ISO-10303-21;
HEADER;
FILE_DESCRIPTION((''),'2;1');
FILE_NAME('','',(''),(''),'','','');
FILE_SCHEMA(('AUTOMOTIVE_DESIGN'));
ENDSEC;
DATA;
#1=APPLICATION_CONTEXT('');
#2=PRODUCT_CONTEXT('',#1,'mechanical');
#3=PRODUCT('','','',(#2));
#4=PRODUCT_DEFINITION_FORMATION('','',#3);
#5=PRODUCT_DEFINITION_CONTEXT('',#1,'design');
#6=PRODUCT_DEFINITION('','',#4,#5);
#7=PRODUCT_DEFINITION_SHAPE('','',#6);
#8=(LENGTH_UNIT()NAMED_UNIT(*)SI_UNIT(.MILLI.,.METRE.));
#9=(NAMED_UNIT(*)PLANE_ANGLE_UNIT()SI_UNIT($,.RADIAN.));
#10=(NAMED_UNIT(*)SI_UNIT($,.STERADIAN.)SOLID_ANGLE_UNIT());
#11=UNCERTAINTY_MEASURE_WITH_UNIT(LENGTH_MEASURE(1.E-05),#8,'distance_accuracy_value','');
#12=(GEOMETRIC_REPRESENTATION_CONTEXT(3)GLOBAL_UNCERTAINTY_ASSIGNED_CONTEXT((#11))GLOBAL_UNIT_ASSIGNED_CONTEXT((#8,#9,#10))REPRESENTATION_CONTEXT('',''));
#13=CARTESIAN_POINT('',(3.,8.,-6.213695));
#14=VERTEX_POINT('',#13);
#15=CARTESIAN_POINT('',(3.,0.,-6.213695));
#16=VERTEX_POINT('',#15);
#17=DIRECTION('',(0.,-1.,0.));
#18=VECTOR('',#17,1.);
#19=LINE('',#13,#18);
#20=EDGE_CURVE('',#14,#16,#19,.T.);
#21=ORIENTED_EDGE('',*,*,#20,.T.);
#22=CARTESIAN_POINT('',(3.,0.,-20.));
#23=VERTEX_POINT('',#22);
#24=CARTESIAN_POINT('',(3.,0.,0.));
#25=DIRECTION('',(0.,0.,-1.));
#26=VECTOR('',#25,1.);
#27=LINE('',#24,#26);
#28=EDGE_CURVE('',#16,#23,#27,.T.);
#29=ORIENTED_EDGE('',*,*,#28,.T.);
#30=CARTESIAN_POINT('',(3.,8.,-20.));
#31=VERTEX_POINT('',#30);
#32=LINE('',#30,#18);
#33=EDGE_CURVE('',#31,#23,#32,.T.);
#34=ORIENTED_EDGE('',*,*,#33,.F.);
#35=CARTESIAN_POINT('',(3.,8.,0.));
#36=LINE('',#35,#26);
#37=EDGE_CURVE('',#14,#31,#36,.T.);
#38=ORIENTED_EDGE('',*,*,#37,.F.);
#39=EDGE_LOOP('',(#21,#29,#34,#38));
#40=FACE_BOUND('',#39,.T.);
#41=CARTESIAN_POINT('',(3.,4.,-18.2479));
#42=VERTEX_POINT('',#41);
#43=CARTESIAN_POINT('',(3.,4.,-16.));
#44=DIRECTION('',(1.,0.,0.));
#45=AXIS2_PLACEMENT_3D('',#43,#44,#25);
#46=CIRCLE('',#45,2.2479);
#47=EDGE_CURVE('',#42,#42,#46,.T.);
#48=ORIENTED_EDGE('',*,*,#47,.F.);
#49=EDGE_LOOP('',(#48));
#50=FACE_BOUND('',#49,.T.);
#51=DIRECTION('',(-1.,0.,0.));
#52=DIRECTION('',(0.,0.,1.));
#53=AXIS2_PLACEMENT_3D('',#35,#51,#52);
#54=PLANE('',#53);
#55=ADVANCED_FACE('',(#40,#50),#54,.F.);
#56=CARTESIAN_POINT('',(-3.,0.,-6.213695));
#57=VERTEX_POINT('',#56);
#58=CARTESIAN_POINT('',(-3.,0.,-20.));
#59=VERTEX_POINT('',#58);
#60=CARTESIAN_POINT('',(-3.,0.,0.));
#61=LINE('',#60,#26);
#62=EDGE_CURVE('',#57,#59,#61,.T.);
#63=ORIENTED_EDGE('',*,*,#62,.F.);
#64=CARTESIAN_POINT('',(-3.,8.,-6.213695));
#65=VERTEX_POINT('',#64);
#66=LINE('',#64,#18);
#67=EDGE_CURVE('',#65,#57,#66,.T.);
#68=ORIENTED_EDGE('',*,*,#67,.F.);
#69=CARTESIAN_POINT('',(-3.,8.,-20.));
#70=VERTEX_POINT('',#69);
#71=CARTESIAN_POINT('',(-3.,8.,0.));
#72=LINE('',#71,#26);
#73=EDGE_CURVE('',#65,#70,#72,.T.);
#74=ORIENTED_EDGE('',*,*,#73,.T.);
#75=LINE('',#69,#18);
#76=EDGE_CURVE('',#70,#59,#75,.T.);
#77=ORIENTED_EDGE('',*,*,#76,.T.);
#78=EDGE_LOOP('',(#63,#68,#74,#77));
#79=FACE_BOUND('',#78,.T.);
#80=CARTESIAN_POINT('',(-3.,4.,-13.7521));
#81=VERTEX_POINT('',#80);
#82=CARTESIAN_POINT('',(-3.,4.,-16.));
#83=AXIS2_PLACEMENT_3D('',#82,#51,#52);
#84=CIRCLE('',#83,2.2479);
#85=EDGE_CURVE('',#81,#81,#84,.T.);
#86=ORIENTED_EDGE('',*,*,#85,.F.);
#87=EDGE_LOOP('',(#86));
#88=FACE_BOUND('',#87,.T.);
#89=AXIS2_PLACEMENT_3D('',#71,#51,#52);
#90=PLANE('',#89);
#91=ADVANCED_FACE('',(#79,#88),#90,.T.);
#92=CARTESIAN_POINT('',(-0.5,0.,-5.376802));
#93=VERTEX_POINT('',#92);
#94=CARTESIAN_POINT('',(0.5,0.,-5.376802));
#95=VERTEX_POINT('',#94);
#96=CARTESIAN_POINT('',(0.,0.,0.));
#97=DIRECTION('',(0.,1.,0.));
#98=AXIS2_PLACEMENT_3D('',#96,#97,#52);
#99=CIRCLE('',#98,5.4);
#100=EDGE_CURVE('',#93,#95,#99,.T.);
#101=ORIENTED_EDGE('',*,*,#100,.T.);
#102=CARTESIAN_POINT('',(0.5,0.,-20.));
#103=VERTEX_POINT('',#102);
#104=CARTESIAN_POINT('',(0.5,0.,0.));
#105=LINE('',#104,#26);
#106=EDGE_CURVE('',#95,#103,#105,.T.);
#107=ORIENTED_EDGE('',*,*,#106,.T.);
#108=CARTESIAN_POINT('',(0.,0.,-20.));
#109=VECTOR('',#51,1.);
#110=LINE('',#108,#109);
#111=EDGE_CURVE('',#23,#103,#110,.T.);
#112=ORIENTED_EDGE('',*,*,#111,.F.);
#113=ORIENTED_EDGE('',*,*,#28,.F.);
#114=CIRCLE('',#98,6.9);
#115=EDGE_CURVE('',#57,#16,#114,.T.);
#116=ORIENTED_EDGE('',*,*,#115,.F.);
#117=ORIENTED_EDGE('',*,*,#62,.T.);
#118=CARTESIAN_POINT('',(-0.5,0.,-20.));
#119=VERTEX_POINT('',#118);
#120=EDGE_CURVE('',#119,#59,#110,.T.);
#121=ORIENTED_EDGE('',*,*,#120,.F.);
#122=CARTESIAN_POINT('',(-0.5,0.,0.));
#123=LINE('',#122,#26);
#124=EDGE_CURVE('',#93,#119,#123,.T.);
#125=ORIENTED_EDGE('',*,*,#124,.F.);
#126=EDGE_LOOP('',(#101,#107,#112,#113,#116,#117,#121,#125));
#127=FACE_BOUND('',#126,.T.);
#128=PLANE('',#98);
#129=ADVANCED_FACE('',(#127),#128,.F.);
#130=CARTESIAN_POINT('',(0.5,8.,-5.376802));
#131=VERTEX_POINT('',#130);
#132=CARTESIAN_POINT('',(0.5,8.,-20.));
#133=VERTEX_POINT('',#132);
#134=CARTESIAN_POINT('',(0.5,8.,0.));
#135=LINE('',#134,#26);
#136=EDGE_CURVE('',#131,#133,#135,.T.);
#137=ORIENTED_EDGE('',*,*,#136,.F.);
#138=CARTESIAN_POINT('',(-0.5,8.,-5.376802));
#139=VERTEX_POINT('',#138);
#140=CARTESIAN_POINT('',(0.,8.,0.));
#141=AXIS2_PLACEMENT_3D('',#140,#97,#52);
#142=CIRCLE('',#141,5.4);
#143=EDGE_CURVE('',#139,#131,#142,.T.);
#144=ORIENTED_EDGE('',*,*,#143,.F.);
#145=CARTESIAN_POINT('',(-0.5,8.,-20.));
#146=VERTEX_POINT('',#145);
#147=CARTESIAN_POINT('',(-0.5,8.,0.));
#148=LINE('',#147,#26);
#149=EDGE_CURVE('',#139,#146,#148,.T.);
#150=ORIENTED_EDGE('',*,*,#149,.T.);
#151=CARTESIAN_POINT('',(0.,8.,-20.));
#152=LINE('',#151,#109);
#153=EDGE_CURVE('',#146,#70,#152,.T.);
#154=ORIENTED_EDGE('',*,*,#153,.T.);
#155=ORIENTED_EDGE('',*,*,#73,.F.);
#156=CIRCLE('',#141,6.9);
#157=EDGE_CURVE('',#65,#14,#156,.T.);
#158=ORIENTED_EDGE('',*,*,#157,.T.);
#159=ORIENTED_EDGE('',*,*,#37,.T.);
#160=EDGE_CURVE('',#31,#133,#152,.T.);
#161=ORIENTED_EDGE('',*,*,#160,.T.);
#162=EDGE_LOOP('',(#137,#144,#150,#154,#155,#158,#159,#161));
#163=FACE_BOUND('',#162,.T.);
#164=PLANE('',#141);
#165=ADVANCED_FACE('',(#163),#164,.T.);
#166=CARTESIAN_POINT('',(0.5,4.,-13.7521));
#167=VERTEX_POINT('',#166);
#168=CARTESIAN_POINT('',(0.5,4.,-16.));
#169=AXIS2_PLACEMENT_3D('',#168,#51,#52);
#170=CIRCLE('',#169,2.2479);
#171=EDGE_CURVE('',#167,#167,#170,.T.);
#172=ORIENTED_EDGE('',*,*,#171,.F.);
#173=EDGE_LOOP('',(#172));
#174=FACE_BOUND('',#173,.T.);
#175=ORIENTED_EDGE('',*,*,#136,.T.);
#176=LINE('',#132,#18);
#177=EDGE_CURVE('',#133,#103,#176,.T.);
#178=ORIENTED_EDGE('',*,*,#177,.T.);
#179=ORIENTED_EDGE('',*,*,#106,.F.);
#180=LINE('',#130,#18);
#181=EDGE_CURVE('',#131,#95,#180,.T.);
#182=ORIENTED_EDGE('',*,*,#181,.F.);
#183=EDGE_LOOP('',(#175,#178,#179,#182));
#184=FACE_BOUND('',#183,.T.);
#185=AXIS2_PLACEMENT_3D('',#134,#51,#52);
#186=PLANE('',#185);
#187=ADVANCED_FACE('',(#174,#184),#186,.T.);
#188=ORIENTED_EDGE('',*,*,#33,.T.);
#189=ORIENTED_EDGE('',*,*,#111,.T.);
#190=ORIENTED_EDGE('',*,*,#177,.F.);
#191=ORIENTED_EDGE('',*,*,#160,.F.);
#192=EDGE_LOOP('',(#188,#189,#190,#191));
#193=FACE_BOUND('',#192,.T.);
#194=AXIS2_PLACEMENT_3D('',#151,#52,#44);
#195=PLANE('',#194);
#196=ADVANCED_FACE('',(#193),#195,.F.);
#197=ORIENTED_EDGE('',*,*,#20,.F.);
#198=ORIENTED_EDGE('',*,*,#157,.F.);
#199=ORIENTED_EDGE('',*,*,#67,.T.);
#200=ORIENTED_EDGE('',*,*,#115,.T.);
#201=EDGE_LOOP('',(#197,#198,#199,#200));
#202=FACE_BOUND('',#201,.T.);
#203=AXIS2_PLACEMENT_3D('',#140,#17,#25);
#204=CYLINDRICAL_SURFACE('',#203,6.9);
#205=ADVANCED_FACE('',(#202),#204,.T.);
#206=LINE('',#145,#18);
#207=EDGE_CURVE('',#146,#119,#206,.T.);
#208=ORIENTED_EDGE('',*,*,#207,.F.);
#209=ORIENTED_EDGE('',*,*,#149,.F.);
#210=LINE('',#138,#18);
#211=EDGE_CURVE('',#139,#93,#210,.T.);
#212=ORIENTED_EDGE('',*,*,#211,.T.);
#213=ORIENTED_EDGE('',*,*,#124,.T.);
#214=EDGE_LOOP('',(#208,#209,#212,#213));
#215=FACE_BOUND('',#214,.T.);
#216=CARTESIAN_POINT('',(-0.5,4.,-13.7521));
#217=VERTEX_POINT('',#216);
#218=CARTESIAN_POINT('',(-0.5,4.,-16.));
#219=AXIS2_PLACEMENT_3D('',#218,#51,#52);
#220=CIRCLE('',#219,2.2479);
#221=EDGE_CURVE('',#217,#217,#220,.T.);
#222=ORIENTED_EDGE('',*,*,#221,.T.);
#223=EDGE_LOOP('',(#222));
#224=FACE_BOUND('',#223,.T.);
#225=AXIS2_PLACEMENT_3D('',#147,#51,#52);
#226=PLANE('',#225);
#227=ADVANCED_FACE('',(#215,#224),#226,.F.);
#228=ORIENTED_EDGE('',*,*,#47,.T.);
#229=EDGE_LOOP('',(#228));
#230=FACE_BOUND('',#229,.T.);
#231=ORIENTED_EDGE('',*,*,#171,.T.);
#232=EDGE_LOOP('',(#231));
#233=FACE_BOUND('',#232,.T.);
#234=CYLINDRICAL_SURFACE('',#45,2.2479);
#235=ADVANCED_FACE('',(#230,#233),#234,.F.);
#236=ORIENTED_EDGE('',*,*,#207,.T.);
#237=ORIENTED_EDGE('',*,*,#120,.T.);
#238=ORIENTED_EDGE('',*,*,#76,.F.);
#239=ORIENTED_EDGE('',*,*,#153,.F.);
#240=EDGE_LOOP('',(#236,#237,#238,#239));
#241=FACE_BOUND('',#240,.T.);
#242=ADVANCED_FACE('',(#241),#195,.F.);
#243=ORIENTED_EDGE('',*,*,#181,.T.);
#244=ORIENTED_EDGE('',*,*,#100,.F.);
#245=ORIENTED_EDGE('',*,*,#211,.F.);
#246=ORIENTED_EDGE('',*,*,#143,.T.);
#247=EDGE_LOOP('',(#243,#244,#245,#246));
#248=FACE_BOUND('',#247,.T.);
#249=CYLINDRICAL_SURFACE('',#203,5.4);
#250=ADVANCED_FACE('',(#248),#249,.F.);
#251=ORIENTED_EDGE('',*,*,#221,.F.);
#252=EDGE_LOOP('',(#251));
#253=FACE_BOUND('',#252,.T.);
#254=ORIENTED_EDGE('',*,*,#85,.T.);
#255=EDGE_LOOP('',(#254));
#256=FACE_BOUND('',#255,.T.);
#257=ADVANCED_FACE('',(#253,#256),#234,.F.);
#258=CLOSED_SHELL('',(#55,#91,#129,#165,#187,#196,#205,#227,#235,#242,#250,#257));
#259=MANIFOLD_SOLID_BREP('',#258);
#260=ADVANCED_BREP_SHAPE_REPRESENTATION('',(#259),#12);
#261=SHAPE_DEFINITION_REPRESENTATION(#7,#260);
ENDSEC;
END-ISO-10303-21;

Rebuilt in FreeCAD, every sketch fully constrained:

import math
import FreeCAD as App
import Part
import Sketcher
Q = App.Units.Quantity

doc = App.newDocument("Part")
params = doc.addObject("Spreadsheet::Sheet", "Params")
for row, (alias, value) in enumerate([
    ("sketch1_radius", "5.4 mm"),
    ("sketch1_radius2", "6.9 mm"),
    ("sketch1_width", "2.5 mm"),
    ("pad1_length", "8 mm"),
    ("hole_diameter", "4.4958 mm"),
], start=1):
    params.set(f"A{row}", alias)
    params.set(f"B{row}", "=" + value)
    params.setAlias(f"B{row}", alias)

body = doc.addObject("PartDesign::Body", "Body")

sketch1 = body.newObject("Sketcher::SketchObject", "Sketch")
sketch1.AttachmentSupport = (doc.getObject("XZ_Plane"), [""])
sketch1.MapMode = "FlatFace"
sketch1.addGeometry(Part.LineSegment(App.Vector(3, -6.2, 0), App.Vector(3, -20, 0)), False)
sketch1.addGeometry(Part.LineSegment(App.Vector(3, -20, 0), App.Vector(0.5, -20, 0)), False)
sketch1.addGeometry(Part.LineSegment(App.Vector(0.5, -20, 0), App.Vector(0.5, -5.4, 0)), False)
sketch1.addGeometry(Part.ArcOfCircle(Part.Circle(App.Vector(0, 0, 0), App.Vector(0, 0, 1), 5.4), math.radians(-85), math.radians(265)), False)
sketch1.addGeometry(Part.LineSegment(App.Vector(-0.5, -5.4, 0), App.Vector(-0.5, -20, 0)), False)
sketch1.addGeometry(Part.LineSegment(App.Vector(-0.5, -20, 0), App.Vector(-3, -20, 0)), False)
sketch1.addGeometry(Part.LineSegment(App.Vector(-3, -20, 0), App.Vector(-3, -6.2, 0)), False)
sketch1.addGeometry(Part.ArcOfCircle(Part.Circle(App.Vector(0, 0, 0), App.Vector(0, 0, 1), 6.9), math.radians(-64), math.radians(244)), False)
sketch1.addConstraint(Sketcher.Constraint("Coincident", 0, 2, 1, 1))
sketch1.addConstraint(Sketcher.Constraint("Coincident", 1, 2, 2, 1))
sketch1.addConstraint(Sketcher.Constraint("Coincident", 2, 2, 3, 1))
sketch1.addConstraint(Sketcher.Constraint("Coincident", 3, 2, 4, 1))
sketch1.addConstraint(Sketcher.Constraint("Coincident", 4, 2, 5, 1))
sketch1.addConstraint(Sketcher.Constraint("Coincident", 5, 2, 6, 1))
sketch1.addConstraint(Sketcher.Constraint("Coincident", 6, 2, 7, 2))
sketch1.addConstraint(Sketcher.Constraint("Coincident", 7, 1, 0, 1))
sketch1.addConstraint(Sketcher.Constraint("Vertical", 0))
sketch1.addConstraint(Sketcher.Constraint("Horizontal", 1))
sketch1.addConstraint(Sketcher.Constraint("Vertical", 2))
sketch1.addConstraint(Sketcher.Constraint("Vertical", 4))
sketch1.addConstraint(Sketcher.Constraint("Horizontal", 5))
sketch1.addConstraint(Sketcher.Constraint("Vertical", 6))
sketch1.addConstraint(Sketcher.Constraint("Coincident", 3, 3, -1, 1))
sketch1.addConstraint(Sketcher.Constraint("Coincident", 7, 3, -1, 1))
sketch1.addConstraint(Sketcher.Constraint("Symmetric", 1, 2, 4, 2, -2))
sketch1.addConstraint(Sketcher.Constraint("Horizontal", 6, 2, 7, 1))
sketch1.addConstraint(Sketcher.Constraint("Radius", 3, Q("5.4 mm")))
sketch1.addConstraint(Sketcher.Constraint("Radius", 7, Q("6.9 mm")))
sketch1.addConstraint(Sketcher.Constraint("DistanceX", 1, 2, 1, 1, Q("2.5 mm")))
sketch1.addConstraint(Sketcher.Constraint("DistanceX", -1, 1, 0, 2, Q("3 mm")))
sketch1.addConstraint(Sketcher.Constraint("DistanceY", 0, 2, -1, 1, Q("20 mm")))
sketch1.setExpression("Constraints[18]", "Params.sketch1_radius")
sketch1.setExpression("Constraints[19]", "Params.sketch1_radius2")
sketch1.setExpression("Constraints[20]", "Params.sketch1_width")
pad1 = body.newObject("PartDesign::Pad", "Pad")
pad1.Profile = sketch1
pad1.setExpression("Length", "Params.pad1_length")
pad1.Reversed = True

sketch2 = body.newObject("Sketcher::SketchObject", "Sketch001")
sketch2.AttachmentSupport = (doc.getObject("YZ_Plane"), [""])
sketch2.MapMode = "FlatFace"
sketch2.AttachmentOffset = App.Placement(App.Vector(0, 0, 3), App.Rotation())
sketch2.addGeometry(Part.Circle(App.Vector(4, -16, 0), App.Vector(0, 0, 1), 2.2), False)
sketch2.addConstraint(Sketcher.Constraint("DistanceX", -1, 1, 0, 3, Q("4 mm")))
sketch2.addConstraint(Sketcher.Constraint("DistanceY", 0, 3, -1, 1, Q("16 mm")))
sketch2.addConstraint(Sketcher.Constraint("Diameter", 0, Q("4.4958 mm")))
doc.recompute()
hole = body.newObject("PartDesign::Hole", "Hole")
hole.Profile = sketch2
hole.ThreadType = "None"
hole.setExpression("Diameter", "Params.hole_diameter")
hole.DepthType = "ThroughAll"

doc.recompute()
